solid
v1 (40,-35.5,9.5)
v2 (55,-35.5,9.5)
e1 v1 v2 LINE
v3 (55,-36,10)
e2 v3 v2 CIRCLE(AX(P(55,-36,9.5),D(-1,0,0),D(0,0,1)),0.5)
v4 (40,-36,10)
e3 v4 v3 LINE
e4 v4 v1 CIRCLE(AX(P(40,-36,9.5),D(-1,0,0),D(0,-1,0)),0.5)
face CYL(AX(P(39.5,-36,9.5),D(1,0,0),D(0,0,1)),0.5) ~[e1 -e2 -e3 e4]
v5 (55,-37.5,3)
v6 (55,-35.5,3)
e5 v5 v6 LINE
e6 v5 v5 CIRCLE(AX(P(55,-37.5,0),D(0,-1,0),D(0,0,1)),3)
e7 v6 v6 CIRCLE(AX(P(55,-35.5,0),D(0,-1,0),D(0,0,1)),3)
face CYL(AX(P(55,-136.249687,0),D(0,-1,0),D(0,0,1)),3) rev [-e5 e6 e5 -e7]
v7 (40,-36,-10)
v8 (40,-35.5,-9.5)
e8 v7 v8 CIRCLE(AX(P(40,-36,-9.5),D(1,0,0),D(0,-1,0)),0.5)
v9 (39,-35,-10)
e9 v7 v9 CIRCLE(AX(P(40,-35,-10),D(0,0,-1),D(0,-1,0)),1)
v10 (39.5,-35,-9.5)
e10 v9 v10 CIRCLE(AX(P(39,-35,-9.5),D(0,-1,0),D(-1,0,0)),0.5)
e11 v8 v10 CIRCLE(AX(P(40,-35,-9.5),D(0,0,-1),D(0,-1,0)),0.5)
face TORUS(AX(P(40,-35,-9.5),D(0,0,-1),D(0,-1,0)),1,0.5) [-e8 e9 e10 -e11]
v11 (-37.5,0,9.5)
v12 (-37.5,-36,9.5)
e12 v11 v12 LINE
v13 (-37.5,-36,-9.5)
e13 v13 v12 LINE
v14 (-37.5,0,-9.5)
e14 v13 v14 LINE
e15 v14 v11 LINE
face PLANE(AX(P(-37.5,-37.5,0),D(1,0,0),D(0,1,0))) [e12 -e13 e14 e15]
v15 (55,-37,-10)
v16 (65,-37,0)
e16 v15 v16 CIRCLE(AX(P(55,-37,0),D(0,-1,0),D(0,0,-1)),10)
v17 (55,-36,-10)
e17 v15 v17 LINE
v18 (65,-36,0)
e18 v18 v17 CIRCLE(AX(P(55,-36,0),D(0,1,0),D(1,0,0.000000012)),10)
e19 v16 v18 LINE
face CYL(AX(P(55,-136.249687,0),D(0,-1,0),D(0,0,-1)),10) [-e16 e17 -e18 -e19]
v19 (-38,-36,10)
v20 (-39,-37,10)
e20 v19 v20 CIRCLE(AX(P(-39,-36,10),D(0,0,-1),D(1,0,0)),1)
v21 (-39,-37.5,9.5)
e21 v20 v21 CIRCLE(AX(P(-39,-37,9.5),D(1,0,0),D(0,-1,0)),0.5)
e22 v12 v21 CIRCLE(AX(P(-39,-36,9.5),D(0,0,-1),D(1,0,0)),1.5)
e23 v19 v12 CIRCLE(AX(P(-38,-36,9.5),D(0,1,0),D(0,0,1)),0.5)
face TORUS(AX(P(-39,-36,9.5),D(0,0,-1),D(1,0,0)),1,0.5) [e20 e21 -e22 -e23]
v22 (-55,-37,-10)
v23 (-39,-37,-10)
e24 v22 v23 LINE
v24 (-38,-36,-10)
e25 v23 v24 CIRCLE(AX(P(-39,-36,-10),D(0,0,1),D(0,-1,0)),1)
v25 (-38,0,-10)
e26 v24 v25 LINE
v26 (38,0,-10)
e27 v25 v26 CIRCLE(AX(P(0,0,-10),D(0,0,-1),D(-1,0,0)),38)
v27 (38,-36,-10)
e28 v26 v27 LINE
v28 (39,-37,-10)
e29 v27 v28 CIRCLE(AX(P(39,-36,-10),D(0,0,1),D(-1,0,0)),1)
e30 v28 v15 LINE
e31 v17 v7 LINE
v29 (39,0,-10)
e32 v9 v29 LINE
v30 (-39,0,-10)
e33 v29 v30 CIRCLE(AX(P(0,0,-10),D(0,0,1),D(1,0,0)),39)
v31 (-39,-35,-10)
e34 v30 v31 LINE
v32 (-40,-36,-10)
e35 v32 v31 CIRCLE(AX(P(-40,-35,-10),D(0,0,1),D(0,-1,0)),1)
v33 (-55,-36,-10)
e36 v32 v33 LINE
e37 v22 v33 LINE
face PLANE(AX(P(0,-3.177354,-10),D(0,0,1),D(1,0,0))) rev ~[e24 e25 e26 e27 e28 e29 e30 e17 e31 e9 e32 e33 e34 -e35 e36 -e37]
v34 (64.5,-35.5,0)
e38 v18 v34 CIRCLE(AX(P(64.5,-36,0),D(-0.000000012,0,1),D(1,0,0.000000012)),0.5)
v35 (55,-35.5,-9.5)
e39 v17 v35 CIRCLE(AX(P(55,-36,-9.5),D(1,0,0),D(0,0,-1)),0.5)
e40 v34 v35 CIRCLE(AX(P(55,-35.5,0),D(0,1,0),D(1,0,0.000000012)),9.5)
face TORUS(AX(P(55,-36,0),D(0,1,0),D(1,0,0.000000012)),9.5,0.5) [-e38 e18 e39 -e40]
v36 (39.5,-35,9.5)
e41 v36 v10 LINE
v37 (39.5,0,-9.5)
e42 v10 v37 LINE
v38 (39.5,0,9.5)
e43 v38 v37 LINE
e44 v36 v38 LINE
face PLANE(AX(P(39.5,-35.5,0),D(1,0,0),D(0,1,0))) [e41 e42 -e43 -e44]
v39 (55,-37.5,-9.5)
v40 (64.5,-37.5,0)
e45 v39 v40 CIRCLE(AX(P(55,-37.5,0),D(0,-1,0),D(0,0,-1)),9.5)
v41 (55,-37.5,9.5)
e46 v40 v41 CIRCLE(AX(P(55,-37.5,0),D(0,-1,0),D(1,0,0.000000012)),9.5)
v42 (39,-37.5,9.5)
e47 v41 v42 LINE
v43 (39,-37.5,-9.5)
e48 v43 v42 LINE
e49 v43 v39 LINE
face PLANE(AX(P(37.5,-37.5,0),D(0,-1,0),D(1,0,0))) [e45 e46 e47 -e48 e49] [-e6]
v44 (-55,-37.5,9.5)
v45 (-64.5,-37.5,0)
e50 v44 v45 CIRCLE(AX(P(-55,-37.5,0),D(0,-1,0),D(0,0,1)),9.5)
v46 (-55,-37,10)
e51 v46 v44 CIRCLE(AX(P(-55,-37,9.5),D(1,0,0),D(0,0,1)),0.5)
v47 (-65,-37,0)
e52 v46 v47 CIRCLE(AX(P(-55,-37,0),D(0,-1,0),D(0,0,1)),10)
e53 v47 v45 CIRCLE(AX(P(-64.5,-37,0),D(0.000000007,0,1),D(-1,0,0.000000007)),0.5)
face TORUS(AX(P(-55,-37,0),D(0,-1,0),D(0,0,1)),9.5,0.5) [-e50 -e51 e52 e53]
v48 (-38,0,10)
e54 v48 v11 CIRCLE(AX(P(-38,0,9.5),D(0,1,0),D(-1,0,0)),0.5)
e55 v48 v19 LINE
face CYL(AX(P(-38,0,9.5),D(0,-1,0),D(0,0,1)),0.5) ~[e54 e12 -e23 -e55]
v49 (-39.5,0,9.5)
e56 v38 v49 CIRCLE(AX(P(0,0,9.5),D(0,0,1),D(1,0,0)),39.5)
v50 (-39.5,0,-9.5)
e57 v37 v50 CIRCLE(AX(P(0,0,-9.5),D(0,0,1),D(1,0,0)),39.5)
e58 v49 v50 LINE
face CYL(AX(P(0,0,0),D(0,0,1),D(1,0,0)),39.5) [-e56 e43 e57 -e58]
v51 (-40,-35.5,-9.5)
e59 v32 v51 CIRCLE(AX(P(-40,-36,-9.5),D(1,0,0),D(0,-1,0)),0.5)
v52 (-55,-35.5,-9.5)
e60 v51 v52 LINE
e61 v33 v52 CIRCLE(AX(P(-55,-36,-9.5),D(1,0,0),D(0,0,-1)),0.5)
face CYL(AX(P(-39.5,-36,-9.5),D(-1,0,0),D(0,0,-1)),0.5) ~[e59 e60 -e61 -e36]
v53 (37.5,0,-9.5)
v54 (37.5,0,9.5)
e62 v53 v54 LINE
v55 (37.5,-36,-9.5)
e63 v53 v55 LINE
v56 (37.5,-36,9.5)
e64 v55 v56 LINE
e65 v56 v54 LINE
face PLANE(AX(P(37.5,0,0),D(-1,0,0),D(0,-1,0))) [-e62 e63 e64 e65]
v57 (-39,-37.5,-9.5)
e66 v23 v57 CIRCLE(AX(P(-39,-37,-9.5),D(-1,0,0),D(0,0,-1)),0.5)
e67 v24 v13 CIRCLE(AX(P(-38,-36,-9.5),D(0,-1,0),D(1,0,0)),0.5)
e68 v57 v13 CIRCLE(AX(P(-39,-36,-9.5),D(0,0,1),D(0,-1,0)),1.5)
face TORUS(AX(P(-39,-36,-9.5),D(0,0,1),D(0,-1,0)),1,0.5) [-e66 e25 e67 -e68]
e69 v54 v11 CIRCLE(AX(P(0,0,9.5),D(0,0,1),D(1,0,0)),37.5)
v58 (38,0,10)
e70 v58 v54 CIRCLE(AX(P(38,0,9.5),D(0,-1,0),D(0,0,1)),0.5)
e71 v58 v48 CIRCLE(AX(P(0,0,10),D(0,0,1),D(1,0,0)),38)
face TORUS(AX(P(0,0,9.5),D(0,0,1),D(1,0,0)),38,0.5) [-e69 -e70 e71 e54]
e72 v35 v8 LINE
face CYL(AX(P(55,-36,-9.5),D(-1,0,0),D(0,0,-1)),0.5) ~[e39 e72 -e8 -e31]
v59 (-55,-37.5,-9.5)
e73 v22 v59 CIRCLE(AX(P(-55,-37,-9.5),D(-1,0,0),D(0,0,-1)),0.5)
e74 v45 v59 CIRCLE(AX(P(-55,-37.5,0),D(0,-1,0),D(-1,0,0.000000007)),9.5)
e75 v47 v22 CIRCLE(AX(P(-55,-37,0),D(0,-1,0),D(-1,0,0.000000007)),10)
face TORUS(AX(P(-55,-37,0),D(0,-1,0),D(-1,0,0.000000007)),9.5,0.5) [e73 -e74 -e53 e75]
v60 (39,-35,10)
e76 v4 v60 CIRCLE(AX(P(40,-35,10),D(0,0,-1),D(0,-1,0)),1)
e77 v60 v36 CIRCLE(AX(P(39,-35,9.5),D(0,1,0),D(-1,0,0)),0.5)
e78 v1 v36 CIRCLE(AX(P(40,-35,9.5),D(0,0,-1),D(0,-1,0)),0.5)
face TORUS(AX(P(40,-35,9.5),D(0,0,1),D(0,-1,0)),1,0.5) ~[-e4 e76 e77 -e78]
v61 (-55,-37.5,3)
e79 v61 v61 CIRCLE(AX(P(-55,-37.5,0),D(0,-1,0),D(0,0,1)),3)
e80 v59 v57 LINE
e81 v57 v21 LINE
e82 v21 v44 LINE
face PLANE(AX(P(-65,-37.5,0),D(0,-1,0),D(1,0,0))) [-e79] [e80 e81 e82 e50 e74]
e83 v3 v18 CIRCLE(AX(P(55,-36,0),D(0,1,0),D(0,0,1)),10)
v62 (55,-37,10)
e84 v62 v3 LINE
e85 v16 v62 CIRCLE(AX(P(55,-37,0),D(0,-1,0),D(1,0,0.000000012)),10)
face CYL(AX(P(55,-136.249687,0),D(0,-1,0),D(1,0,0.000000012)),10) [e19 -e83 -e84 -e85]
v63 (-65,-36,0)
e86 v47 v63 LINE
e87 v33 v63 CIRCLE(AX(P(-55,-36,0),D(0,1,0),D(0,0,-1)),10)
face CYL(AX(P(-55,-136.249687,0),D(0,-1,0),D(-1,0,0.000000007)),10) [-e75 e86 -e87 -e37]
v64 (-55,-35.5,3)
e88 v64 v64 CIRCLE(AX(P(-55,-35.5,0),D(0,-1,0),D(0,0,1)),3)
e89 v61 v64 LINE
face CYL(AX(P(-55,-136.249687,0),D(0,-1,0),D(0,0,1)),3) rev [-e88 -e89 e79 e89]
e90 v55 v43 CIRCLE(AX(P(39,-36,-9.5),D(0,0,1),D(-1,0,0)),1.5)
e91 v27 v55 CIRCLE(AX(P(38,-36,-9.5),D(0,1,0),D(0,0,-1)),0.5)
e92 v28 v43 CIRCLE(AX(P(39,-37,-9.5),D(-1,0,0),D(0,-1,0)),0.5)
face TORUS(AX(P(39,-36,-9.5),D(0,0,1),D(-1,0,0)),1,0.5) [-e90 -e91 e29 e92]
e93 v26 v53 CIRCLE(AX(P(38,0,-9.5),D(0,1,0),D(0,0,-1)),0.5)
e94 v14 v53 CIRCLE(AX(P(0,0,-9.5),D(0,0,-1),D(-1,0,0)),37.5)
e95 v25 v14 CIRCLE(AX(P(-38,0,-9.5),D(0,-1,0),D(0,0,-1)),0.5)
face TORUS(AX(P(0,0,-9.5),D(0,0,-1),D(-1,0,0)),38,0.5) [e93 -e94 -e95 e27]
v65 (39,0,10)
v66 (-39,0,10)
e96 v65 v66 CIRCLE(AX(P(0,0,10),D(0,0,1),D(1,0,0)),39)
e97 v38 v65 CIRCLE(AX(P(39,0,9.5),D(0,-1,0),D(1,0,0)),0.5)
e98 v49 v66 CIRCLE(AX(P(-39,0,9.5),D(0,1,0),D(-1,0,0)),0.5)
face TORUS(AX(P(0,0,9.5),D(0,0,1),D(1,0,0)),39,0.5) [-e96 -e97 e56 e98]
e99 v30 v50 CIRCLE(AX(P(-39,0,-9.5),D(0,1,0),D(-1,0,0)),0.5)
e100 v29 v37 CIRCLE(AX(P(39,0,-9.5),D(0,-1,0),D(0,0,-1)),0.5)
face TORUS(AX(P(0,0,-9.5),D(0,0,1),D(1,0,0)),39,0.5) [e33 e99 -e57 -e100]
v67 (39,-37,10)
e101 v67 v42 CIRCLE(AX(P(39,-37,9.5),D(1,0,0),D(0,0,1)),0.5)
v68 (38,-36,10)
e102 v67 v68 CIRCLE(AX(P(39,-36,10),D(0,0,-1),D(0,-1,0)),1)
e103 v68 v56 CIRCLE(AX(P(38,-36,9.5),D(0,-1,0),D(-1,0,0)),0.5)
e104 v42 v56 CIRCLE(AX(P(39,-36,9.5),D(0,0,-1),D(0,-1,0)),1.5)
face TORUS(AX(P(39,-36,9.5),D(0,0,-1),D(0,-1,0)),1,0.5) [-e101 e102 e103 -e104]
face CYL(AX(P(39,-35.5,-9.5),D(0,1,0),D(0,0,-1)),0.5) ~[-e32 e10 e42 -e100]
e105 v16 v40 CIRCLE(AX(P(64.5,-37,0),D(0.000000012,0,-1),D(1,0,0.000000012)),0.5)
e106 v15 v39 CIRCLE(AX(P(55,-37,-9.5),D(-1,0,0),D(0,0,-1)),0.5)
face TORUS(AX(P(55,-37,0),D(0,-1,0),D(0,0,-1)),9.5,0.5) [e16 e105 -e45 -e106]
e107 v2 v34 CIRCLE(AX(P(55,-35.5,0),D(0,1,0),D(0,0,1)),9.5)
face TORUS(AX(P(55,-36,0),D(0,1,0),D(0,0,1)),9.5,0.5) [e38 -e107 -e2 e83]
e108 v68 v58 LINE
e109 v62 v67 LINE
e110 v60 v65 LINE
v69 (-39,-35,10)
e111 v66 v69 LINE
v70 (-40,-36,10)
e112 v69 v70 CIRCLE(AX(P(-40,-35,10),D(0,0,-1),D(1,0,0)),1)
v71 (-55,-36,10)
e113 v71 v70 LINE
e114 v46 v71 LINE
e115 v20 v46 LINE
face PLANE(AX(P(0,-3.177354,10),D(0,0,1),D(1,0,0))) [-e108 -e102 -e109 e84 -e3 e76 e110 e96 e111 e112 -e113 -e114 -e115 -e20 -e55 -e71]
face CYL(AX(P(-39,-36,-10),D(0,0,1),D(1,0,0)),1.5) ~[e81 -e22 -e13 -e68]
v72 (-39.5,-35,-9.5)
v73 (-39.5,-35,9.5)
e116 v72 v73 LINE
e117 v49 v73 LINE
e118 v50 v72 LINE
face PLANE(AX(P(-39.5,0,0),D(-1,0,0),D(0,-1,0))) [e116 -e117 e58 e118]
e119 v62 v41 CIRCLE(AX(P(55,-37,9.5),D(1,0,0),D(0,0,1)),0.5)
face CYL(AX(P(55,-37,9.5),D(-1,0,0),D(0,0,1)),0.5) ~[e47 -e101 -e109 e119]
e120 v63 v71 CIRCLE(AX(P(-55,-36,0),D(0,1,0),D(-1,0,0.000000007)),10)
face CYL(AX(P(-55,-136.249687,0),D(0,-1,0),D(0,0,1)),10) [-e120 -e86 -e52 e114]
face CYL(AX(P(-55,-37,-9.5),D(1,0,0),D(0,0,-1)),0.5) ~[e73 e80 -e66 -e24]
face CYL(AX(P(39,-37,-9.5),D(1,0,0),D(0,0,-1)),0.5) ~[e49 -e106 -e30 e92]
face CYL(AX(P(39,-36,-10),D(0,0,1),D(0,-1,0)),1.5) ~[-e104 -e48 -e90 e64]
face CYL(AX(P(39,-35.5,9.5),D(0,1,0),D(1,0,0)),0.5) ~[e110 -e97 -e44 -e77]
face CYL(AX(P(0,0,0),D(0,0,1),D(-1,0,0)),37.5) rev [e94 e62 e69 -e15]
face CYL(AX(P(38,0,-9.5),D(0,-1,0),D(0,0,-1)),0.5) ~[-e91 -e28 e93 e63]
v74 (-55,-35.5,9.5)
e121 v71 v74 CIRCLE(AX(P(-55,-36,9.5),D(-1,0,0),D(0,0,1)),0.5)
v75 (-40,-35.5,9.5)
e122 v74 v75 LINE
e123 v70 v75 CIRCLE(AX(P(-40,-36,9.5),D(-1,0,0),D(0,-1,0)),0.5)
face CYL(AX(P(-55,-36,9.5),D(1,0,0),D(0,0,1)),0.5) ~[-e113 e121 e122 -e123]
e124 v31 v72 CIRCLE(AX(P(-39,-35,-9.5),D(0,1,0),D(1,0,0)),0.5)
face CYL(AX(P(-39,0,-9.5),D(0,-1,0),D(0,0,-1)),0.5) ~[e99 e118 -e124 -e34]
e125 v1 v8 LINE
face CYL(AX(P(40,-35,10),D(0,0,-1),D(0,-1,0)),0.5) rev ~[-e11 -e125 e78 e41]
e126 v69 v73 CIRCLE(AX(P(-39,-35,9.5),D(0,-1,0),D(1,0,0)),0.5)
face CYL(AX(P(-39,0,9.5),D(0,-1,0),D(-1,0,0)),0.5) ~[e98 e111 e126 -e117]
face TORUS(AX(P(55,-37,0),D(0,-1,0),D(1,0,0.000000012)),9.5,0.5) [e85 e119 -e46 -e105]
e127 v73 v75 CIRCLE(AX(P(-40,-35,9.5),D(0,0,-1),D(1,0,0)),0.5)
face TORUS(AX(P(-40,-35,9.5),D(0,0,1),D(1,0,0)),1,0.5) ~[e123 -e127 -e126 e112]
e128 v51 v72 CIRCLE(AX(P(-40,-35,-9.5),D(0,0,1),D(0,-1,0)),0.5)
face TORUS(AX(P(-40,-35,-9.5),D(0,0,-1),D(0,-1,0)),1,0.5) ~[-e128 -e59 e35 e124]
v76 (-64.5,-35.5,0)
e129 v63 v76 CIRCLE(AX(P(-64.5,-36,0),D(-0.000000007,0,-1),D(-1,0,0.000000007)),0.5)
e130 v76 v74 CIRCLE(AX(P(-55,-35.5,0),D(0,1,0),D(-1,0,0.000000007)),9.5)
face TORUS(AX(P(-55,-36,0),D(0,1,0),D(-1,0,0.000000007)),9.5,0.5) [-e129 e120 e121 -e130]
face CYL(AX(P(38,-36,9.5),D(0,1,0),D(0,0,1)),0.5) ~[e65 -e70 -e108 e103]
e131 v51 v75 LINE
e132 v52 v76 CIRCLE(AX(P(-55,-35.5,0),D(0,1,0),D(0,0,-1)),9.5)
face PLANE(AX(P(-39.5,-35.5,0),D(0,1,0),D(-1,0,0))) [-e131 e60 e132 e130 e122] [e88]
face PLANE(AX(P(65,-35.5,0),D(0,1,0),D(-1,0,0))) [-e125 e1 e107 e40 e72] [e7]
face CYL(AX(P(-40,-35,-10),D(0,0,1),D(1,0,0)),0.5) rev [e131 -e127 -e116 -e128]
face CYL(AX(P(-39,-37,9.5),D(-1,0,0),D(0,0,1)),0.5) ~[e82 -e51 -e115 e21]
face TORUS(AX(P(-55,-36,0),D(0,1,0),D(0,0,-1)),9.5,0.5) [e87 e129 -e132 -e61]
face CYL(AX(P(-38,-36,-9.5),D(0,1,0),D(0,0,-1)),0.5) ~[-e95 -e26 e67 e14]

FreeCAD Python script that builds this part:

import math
import FreeCAD as App
import Part
import Sketcher
from FreeCAD import Vector
Q = App.Units.Quantity


def edges_at(feature, points):
    """Names of the edges that pass closest to the given points."""
    edges = feature.Shape.Edges
    near = lambda p: min(range(len(edges)), key=lambda i: edges[i].distToShape(Part.Vertex(*p))[0])
    return sorted({f"Edge{near(p) + 1}" for p in points})

doc = App.newDocument("Part")
body = doc.addObject("PartDesign::Body", "Body")

sketch1 = body.newObject("Sketcher::SketchObject", "Sketch")
sketch1.AttachmentSupport = (doc.getObject("XY_Plane"), [""])
sketch1.MapMode = "FlatFace"
sketch1.addGeometry(Part.LineSegment(Vector(-39.5, 0, 0), Vector(-39.5, -35.5, 0)), False)
sketch1.addGeometry(Part.LineSegment(Vector(-39.5, -35.5, 0), Vector(-65, -35.5, 0)), False)
sketch1.addGeometry(Part.LineSegment(Vector(-65, -35.5, 0), Vector(-65, -37.5, 0)), False)
sketch1.addGeometry(Part.LineSegment(Vector(-65, -37.5, 0), Vector(-37.5, -37.5, 0)), False)
sketch1.addGeometry(Part.LineSegment(Vector(-37.5, -37.5, 0), Vector(-37.5, 0, 0)), False)
sketch1.addGeometry(Part.ArcOfCircle(Part.Circle(Vector(0, 0, 0), Vector(0, 0, 1), 37.5), math.radians(0), math.radians(180)), False)
sketch1.addGeometry(Part.LineSegment(Vector(37.5, 0, 0), Vector(37.5, -37.5, 0)), False)
sketch1.addGeometry(Part.LineSegment(Vector(37.5, -37.5, 0), Vector(65, -37.5, 0)), False)
sketch1.addGeometry(Part.LineSegment(Vector(65, -37.5, 0), Vector(65, -35.5, 0)), False)
sketch1.addGeometry(Part.LineSegment(Vector(65, -35.5, 0), Vector(39.5, -35.5, 0)), False)
sketch1.addGeometry(Part.LineSegment(Vector(39.5, -35.5, 0), Vector(39.5, 0, 0)), False)
sketch1.addGeometry(Part.ArcOfCircle(Part.Circle(Vector(0, 0, 0), Vector(0, 0, 1), 39.5), math.radians(0), math.radians(180)), False)
sketch1.addConstraint(Sketcher.Constraint("Coincident", 0, 2, 1, 1))
sketch1.addConstraint(Sketcher.Constraint("Coincident", 1, 2, 2, 1))
sketch1.addConstraint(Sketcher.Constraint("Coincident", 2, 2, 3, 1))
sketch1.addConstraint(Sketcher.Constraint("Coincident", 3, 2, 4, 1))
sketch1.addConstraint(Sketcher.Constraint("Tangent", 4, 2, 5, 2))
sketch1.addConstraint(Sketcher.Constraint("Tangent", 5, 1, 6, 1))
sketch1.addConstraint(Sketcher.Constraint("Coincident", 6, 2, 7, 1))
sketch1.addConstraint(Sketcher.Constraint("Coincident", 7, 2, 8, 1))
sketch1.addConstraint(Sketcher.Constraint("Coincident", 8, 2, 9, 1))
sketch1.addConstraint(Sketcher.Constraint("Coincident", 9, 2, 10, 1))
sketch1.addConstraint(Sketcher.Constraint("Tangent", 10, 2, 11, 1))
sketch1.addConstraint(Sketcher.Constraint("Tangent", 11, 2, 0, 1))
sketch1.addConstraint(Sketcher.Constraint("Vertical", 0))
sketch1.addConstraint(Sketcher.Constraint("Horizontal", 1))
sketch1.addConstraint(Sketcher.Constraint("Vertical", 2))
sketch1.addConstraint(Sketcher.Constraint("Horizontal", 3))
sketch1.addConstraint(Sketcher.Constraint("Vertical", 4))
sketch1.addConstraint(Sketcher.Constraint("Vertical", 6))
sketch1.addConstraint(Sketcher.Constraint("Horizontal", 7))
sketch1.addConstraint(Sketcher.Constraint("Vertical", 8))
sketch1.addConstraint(Sketcher.Constraint("Horizontal", 9))
sketch1.addConstraint(Sketcher.Constraint("Vertical", 10))
sketch1.addConstraint(Sketcher.Constraint("Coincident", 5, 3, -1, 1))
sketch1.addConstraint(Sketcher.Constraint("Coincident", 11, 3, -1, 1))
sketch1.addConstraint(Sketcher.Constraint("Symmetric", 2, 2, 7, 2, -2))
sketch1.addConstraint(Sketcher.Constraint("Horizontal", 1, 2, 8, 2))
sketch1.addConstraint(Sketcher.Constraint("Radius", 5, Q("37.5 mm")))
sketch1.addConstraint(Sketcher.Constraint("Radius", 11, Q("39.5 mm")))
sketch1.addConstraint(Sketcher.Constraint("DistanceY", 2, 2, 2, 1, Q("2 mm")))
sketch1.addConstraint(Sketcher.Constraint("DistanceX", 1, 2, 1, 1, Q("25.5 mm")))
sketch1.addConstraint(Sketcher.Constraint("DistanceY", 0, 2, 0, 1, Q("35.5 mm")))
pad1 = body.newObject("PartDesign::Pad", "Pad")
pad1.Profile = sketch1
pad1.Length = 20
pad1.Midplane = True

sketch2 = body.newObject("Sketcher::SketchObject", "Sketch001")
sketch2.AttachmentSupport = (doc.getObject("XZ_Plane"), [""])
sketch2.MapMode = "FlatFace"
sketch2.AttachmentOffset = App.Placement(Vector(0, 0, 35.5), App.Rotation())
sketch2.addGeometry(Part.LineSegment(Vector(65, 10, 0), Vector(65, 0, 0)), False)
sketch2.addGeometry(Part.ArcOfCircle(Part.Circle(Vector(55, 0, 0), Vector(0, 0, 1), 10), math.radians(0.000001), math.radians(90)), False)
sketch2.addGeometry(Part.LineSegment(Vector(55, 10, 0), Vector(65, 10, 0)), False)
sketch2.addGeometry(Part.LineSegment(Vector(65, -10, 0), Vector(55, -10, 0)), False)
sketch2.addGeometry(Part.ArcOfCircle(Part.Circle(Vector(55, 0, 0), Vector(0, 0, 1), 10), math.radians(-90), math.radians(0.000001)), False)
sketch2.addGeometry(Part.LineSegment(Vector(65, 0, 0), Vector(65, -10, 0)), False)
sketch2.addGeometry(Part.LineSegment(Vector(-65, -10, 0), Vector(-65, 0, 0)), False)
sketch2.addGeometry(Part.ArcOfCircle(Part.Circle(Vector(-55, 0, 0), Vector(0, 0, 1), 10), math.radians(180), math.radians(270)), False)
sketch2.addGeometry(Part.LineSegment(Vector(-55, -10, 0), Vector(-65, -10, 0)), False)
sketch2.addGeometry(Part.LineSegment(Vector(-65, 10, 0), Vector(-55, 10, 0)), False)
sketch2.addGeometry(Part.ArcOfCircle(Part.Circle(Vector(-55, 0, 0), Vector(0, 0, 1), 10), math.radians(90), math.radians(180)), False)
sketch2.addGeometry(Part.LineSegment(Vector(-65, 0, 0), Vector(-65, 10, 0)), False)
sketch2.addGeometry(Part.Circle(Vector(-55, 0, 0), Vector(0, 0, 1), 3), False)
sketch2.addGeometry(Part.Circle(Vector(55, 0, 0), Vector(0, 0, 1), 3), False)
sketch2.addConstraint(Sketcher.Constraint("Tangent", 0, 2, 1, 1))
sketch2.addConstraint(Sketcher.Constraint("Tangent", 1, 2, 2, 1))
sketch2.addConstraint(Sketcher.Constraint("Coincident", 2, 2, 0, 1))
sketch2.addConstraint(Sketcher.Constraint("Tangent", 3, 2, 4, 1))
sketch2.addConstraint(Sketcher.Constraint("Tangent", 4, 2, 5, 1))
sketch2.addConstraint(Sketcher.Constraint("Coincident", 5, 2, 3, 1))
sketch2.addConstraint(Sketcher.Constraint("Tangent", 6, 2, 7, 1))
sketch2.addConstraint(Sketcher.Constraint("Tangent", 7, 2, 8, 1))
sketch2.addConstraint(Sketcher.Constraint("Coincident", 8, 2, 6, 1))
sketch2.addConstraint(Sketcher.Constraint("Tangent", 9, 2, 10, 1))
sketch2.addConstraint(Sketcher.Constraint("Tangent", 10, 2, 11, 1))
sketch2.addConstraint(Sketcher.Constraint("Coincident", 11, 2, 9, 1))
sketch2.addConstraint(Sketcher.Constraint("Vertical", 0))
sketch2.addConstraint(Sketcher.Constraint("Horizontal", 2))
sketch2.addConstraint(Sketcher.Constraint("Horizontal", 3))
sketch2.addConstraint(Sketcher.Constraint("Vertical", 5))
sketch2.addConstraint(Sketcher.Constraint("Vertical", 6))
sketch2.addConstraint(Sketcher.Constraint("Horizontal", 8))
sketch2.addConstraint(Sketcher.Constraint("Horizontal", 9))
sketch2.addConstraint(Sketcher.Constraint("Vertical", 11))
sketch2.addConstraint(Sketcher.Constraint("Coincident", 4, 3, 1, 3))
sketch2.addConstraint(Sketcher.Constraint("Coincident", 10, 3, 7, 3))
sketch2.addConstraint(Sketcher.Constraint("Coincident", 12, 3, 7, 3))
sketch2.addConstraint(Sketcher.Constraint("Coincident", 13, 3, 1, 3))
sketch2.addConstraint(Sketcher.Constraint("Equal", 1, 4))
sketch2.addConstraint(Sketcher.Constraint("Equal", 4, 7))
sketch2.addConstraint(Sketcher.Constraint("Equal", 7, 10))
sketch2.addConstraint(Sketcher.Constraint("Equal", 12, 13))
sketch2.addConstraint(Sketcher.Constraint("Symmetric", 1, 3, 7, 3, -1, 1))
sketch2.addConstraint(Sketcher.Constraint("PointOnObject", 1, 3, -1))
sketch2.addConstraint(Sketcher.Constraint("Diameter", 12, Q("6 mm")))
sketch2.addConstraint(Sketcher.Constraint("Radius", 1, Q("10 mm")))
sketch2.addConstraint(Sketcher.Constraint("DistanceX", -1, 1, 1, 3, Q("55 mm")))
pocket1 = body.newObject("PartDesign::Pocket", "Pocket")
pocket1.Profile = sketch2
pocket1.Type = "ThroughAll"
pocket1.Midplane = True
doc.recompute()

fillet = body.newObject("PartDesign::Fillet", "Fillet")
fillet.Base = (pocket1, edges_at(pocket1, [(37.5, -37.5, 0), (-37.5, -37.5, 0)]))
fillet.Radius = 1.5
doc.recompute()

fillet2 = body.newObject("PartDesign::Fillet", "Fillet001")
fillet2.Base = (fillet, edges_at(fillet, [
    (0, 39.5, 10),
    (37.5, -18, -10),
    (0, 37.5, -10),
    (-47.25, -35.5, -10),
    (-39.5, -17.75, -10),
    (0, 39.5, -10),
    (39.5, -17.75, -10),
    (-39.5, -17.75, 10),
    (-47.25, -35.5, 10),
    (-39.5, -35.5, 0),
    (39.5, -35.5, 0),
    (47.25, -35.5, -10),
    (0, 37.5, 10),
    (-47, -37.5, 10),
    (37.5, -18, 10),
    (62.071, -37.5, -7.071),
    (62.071, -35.5, -7.071),
    (-62.071, -35.5, 7.071),
    (-62.071, -37.5, 7.071),
    (-47, -37.5, -10),
    (47.25, -35.5, 10),
    (47, -37.5, 10),
    (47, -37.5, -10),
    (39.5, -17.75, 10),
    (-37.5, -18, -10),
    (-37.939, -37.061, -10),
    (37.939, -37.061, -10),
    (-37.5, -18, 10),
    (-37.939, -37.061, 10),
    (37.939, -37.061, 10),
]))
fillet2.Radius = 0.5

doc.recompute()
